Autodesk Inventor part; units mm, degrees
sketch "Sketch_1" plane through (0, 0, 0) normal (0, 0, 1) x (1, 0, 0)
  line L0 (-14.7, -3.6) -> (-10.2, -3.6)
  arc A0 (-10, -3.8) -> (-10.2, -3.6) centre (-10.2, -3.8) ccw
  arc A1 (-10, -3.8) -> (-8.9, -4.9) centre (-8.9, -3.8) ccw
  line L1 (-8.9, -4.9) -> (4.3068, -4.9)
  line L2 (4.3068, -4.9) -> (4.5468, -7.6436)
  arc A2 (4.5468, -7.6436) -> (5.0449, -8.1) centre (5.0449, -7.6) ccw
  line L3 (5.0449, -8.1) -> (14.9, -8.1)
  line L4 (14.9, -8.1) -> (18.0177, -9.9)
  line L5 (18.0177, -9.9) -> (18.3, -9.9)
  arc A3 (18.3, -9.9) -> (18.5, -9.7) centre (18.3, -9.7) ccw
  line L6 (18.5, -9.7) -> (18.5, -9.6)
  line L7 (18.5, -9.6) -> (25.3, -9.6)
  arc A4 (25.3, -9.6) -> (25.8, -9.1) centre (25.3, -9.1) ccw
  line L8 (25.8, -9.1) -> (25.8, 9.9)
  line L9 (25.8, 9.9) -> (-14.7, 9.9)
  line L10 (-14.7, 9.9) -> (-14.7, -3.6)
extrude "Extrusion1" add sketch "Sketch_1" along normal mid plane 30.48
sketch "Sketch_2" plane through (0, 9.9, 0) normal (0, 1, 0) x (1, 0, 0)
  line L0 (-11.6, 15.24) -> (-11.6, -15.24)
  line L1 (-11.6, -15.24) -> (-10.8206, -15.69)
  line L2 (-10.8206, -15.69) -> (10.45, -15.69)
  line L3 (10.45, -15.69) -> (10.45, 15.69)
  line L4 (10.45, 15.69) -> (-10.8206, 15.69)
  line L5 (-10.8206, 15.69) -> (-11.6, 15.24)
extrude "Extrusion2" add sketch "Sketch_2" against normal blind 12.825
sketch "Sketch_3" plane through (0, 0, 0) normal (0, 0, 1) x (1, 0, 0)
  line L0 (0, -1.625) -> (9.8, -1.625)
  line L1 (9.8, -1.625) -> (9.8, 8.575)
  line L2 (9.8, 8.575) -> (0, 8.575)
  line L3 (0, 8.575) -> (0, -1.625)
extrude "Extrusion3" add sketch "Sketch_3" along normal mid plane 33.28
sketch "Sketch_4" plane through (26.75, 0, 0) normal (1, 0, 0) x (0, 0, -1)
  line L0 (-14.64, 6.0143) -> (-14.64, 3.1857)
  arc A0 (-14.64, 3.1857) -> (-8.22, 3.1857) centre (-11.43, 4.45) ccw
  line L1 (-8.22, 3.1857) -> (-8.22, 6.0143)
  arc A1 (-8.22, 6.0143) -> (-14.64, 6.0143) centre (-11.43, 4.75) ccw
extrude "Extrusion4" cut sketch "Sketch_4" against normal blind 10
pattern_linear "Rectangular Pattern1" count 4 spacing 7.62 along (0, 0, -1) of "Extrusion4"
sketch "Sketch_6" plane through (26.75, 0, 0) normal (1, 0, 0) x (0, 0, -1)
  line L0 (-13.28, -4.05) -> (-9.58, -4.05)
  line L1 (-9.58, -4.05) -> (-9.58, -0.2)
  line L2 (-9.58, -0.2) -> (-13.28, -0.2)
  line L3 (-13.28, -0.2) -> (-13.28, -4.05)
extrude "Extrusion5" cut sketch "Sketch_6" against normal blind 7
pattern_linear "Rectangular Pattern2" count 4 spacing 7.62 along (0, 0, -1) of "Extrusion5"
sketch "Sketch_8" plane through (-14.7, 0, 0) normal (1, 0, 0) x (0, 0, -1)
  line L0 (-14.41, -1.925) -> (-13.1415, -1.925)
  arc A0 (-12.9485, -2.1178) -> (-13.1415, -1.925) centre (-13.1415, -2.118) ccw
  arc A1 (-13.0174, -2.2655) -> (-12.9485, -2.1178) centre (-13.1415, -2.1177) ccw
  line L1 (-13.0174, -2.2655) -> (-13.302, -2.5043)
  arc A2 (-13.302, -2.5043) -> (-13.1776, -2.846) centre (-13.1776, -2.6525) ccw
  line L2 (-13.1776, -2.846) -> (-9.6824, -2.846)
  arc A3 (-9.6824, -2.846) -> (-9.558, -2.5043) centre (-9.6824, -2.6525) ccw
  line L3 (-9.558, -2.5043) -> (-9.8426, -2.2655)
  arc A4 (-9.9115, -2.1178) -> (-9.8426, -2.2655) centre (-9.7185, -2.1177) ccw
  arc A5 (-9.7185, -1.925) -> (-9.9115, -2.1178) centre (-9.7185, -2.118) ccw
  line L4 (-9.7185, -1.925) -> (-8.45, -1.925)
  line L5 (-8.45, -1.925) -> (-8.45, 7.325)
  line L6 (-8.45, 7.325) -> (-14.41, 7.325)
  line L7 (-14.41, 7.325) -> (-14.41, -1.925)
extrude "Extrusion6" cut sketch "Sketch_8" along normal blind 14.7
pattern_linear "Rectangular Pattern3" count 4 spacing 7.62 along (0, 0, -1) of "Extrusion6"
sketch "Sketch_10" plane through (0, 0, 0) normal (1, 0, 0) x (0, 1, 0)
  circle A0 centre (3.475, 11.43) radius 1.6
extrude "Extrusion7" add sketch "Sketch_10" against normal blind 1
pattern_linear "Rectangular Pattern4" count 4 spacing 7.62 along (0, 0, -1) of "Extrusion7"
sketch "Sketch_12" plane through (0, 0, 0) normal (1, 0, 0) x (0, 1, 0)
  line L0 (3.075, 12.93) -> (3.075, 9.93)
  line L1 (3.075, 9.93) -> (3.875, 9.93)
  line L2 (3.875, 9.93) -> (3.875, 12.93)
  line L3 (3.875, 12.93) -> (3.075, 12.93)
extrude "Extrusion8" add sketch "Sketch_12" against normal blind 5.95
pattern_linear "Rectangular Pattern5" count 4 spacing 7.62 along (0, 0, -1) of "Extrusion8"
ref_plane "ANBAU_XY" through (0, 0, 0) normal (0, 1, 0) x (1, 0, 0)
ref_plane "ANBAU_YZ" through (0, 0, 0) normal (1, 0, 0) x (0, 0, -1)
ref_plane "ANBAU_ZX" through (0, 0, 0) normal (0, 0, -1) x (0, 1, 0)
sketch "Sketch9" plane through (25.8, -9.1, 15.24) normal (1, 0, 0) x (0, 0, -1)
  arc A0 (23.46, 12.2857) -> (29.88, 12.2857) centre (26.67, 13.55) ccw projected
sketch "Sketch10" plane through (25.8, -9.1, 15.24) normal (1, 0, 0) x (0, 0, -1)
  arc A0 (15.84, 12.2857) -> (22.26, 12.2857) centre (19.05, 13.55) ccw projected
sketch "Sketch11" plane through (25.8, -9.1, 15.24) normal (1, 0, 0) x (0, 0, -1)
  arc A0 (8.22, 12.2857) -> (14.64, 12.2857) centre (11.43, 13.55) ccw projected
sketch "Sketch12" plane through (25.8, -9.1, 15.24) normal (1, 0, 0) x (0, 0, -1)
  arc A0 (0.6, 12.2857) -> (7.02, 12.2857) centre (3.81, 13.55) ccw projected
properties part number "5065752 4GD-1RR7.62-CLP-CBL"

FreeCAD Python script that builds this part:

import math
import FreeCAD as App
import Part
import Sketcher
from FreeCAD import Vector
Q = App.Units.Quantity


def add_polygon(sketch, points):
    """Adds a closed chain of lines whose ends are joined by coincident constraints."""
    first, n = sketch.GeometryCount, len(points)
    for a, b in zip(points, points[1:] + points[:1]):
        sketch.addGeometry(Part.LineSegment(App.Vector(*a, 0), App.Vector(*b, 0)), False)
    for i in range(n):
        sketch.addConstraint(Sketcher.Constraint("Coincident", first + i, 2, first + (i + 1) % n, 1))

doc = App.newDocument("Part")
body = doc.addObject("PartDesign::Body", "Body")

sketch1 = doc.addObject("Sketcher::SketchObject", "Sketch")
body.addObject(sketch1)
sketch1.AttachmentSupport = (doc.XY_Plane, [""])
sketch1.MapMode = "FlatFace"
sketch1.addGeometry(Part.LineSegment(Vector(-14.7, 9.9, 0), Vector(-14.7, -3.6, 0)), False)
sketch1.addGeometry(Part.LineSegment(Vector(-14.7, -3.6, 0), Vector(-10.2, -3.6, 0)), False)
sketch1.addGeometry(Part.ArcOfCircle(Part.Circle(Vector(-10.2, -3.8, 0), Vector(0, 0, 1), 0.2), math.radians(0), math.radians(90)), False)
sketch1.addGeometry(Part.ArcOfCircle(Part.Circle(Vector(-8.9, -3.8, 0), Vector(0, 0, 1), 1.1), math.radians(180), math.radians(270)), False)
sketch1.addGeometry(Part.LineSegment(Vector(-8.9, -4.9, 0), Vector(4.3068, -4.9, 0)), False)
sketch1.addGeometry(Part.LineSegment(Vector(4.3068, -4.9, 0), Vector(4.5468, -7.6436, 0)), False)
sketch1.addGeometry(Part.ArcOfCircle(Part.Circle(Vector(5.0449, -7.6, 0), Vector(0, 0, 1), 0.500005), math.radians(-174.9975), math.radians(-90)), False)
sketch1.addGeometry(Part.LineSegment(Vector(5.0449, -8.1, 0), Vector(14.9, -8.1, 0)), False)
sketch1.addGeometry(Part.LineSegment(Vector(14.9, -8.1, 0), Vector(18.0177, -9.9, 0)), False)
sketch1.addGeometry(Part.LineSegment(Vector(18.0177, -9.9, 0), Vector(18.3, -9.9, 0)), False)
sketch1.addGeometry(Part.ArcOfCircle(Part.Circle(Vector(18.3, -9.7, 0), Vector(0, 0, 1), 0.2), math.radians(-90), math.radians(0)), False)
sketch1.addGeometry(Part.LineSegment(Vector(18.5, -9.7, 0), Vector(18.5, -9.6, 0)), False)
sketch1.addGeometry(Part.LineSegment(Vector(18.5, -9.6, 0), Vector(25.3, -9.6, 0)), False)
sketch1.addGeometry(Part.ArcOfCircle(Part.Circle(Vector(25.3, -9.1, 0), Vector(0, 0, 1), 0.5), math.radians(-90), math.radians(0)), False)
sketch1.addGeometry(Part.LineSegment(Vector(25.8, -9.1, 0), Vector(25.8, 9.9, 0)), False)
sketch1.addGeometry(Part.LineSegment(Vector(25.8, 9.9, 0), Vector(-14.7, 9.9, 0)), False)
sketch1.addConstraint(Sketcher.Constraint("Coincident", 0, 2, 1, 1))
sketch1.addConstraint(Sketcher.Constraint("Tangent", 1, 2, 2, 2))
sketch1.addConstraint(Sketcher.Constraint("Tangent", 2, 1, 3, 1))
sketch1.addConstraint(Sketcher.Constraint("Tangent", 3, 2, 4, 1))
sketch1.addConstraint(Sketcher.Constraint("Coincident", 4, 2, 5, 1))
sketch1.addConstraint(Sketcher.Constraint("Tangent", 5, 2, 6, 1))
sketch1.addConstraint(Sketcher.Constraint("Tangent", 6, 2, 7, 1))
sketch1.addConstraint(Sketcher.Constraint("Coincident", 7, 2, 8, 1))
sketch1.addConstraint(Sketcher.Constraint("Coincident", 8, 2, 9, 1))
sketch1.addConstraint(Sketcher.Constraint("Tangent", 9, 2, 10, 1))
sketch1.addConstraint(Sketcher.Constraint("Tangent", 10, 2, 11, 1))
sketch1.addConstraint(Sketcher.Constraint("Coincident", 11, 2, 12, 1))
sketch1.addConstraint(Sketcher.Constraint("Tangent", 12, 2, 13, 1))
sketch1.addConstraint(Sketcher.Constraint("Tangent", 13, 2, 14, 1))
sketch1.addConstraint(Sketcher.Constraint("Coincident", 14, 2, 15, 1))
sketch1.addConstraint(Sketcher.Constraint("Coincident", 15, 2, 0, 1))
sketch1.addConstraint(Sketcher.Constraint("Vertical", 0))
sketch1.addConstraint(Sketcher.Constraint("Horizontal", 1))
sketch1.addConstraint(Sketcher.Constraint("Horizontal", 4))
sketch1.addConstraint(Sketcher.Constraint("Horizontal", 7))
sketch1.addConstraint(Sketcher.Constraint("Horizontal", 9))
sketch1.addConstraint(Sketcher.Constraint("Vertical", 11))
sketch1.addConstraint(Sketcher.Constraint("Horizontal", 12))
sketch1.addConstraint(Sketcher.Constraint("Vertical", 14))
sketch1.addConstraint(Sketcher.Constraint("Horizontal", 15))
sketch1.addConstraint(Sketcher.Constraint("Equal", 2, 10))
sketch1.addConstraint(Sketcher.Constraint("Equal", 6, 13))
sketch1.addConstraint(Sketcher.Constraint("Horizontal", 2, 3, 3, 3))
sketch1.addConstraint(Sketcher.Constraint("Radius", 2, 0.2))
sketch1.addConstraint(Sketcher.Constraint("Radius", 3, 1.1))
sketch1.addConstraint(Sketcher.Constraint("Radius", 6, 0.5))
sketch1.addConstraint(Sketcher.Constraint("DistanceY", 14, 1, 14, 2, 19.0))
sketch1.addConstraint(Sketcher.Constraint("Angle", 5, Q("-85.0007 deg")))
sketch1.addConstraint(Sketcher.Constraint("Angle", 8, Q("-30 deg")))
sketch1.addConstraint(Sketcher.Constraint("DistanceX", 1, 1, 1, 2, 4.5))
sketch1.addConstraint(Sketcher.Constraint("DistanceX", 12, 1, 12, 2, 6.8))
sketch1.addConstraint(Sketcher.Constraint("DistanceX", 15, 2, 15, 1, 40.5))
sketch1.addConstraint(Sketcher.Constraint("DistanceY", 0, 2, 0, 1, 13.5))
sketch1.addConstraint(Sketcher.Constraint("DistanceY", 11, 1, 11, 2, 0.1))
sketch1.addConstraint(Sketcher.Constraint("DistanceX", 2, 1, -1, 1, 10.0))
sketch1.addConstraint(Sketcher.Constraint("DistanceY", 6, 3, 0, 2, 4.0))
sketch1.addConstraint(Sketcher.Constraint("DistanceY", 2, 3, -1, 1, 3.8))
sketch1.addConstraint(Sketcher.Constraint("DistanceX", -1, 1, 7, 2, 14.9))
sketch1.addConstraint(Sketcher.Constraint("DistanceX", 7, 1, 7, 2, 9.855))
pad1 = doc.addObject("PartDesign::Pad", "Pad")
body.addObject(pad1)
pad1.Profile = sketch1
pad1.Length = 30.48
pad1.Midplane = True

sketch2 = doc.addObject("Sketcher::SketchObject", "Sketch001")
body.addObject(sketch2)
sketch2.AttachmentSupport = (doc.XZ_Plane, [""])
sketch2.MapMode = "FlatFace"
sketch2.AttachmentOffset = App.Placement(Vector(0, 0, -9.9), App.Rotation())
add_polygon(sketch2, [(-10.8206, -15.69), (-11.6, -15.24), (-11.6, 15.24), (-10.8206, 15.69), (10.45, 15.69), (10.45, -15.69)])
sketch2.addConstraint(Sketcher.Constraint("Vertical", 1))
sketch2.addConstraint(Sketcher.Constraint("Horizontal", 3))
sketch2.addConstraint(Sketcher.Constraint("Vertical", 4))
sketch2.addConstraint(Sketcher.Constraint("Horizontal", 5))
sketch2.addConstraint(Sketcher.Constraint("Symmetric", 2, 2, 5, 2, -1))
sketch2.addConstraint(Sketcher.Constraint("Equal", 0, 2))
sketch2.addConstraint(Sketcher.Constraint("Angle", 0, Q("149.9993 deg")))
sketch2.addConstraint(Sketcher.Constraint("Distance", 0, 0.9))
sketch2.addConstraint(Sketcher.Constraint("DistanceY", 1, 1, 1, 2, 30.48))
sketch2.addConstraint(Sketcher.Constraint("DistanceX", 0, 2, -1, 1, 11.6))
sketch2.addConstraint(Sketcher.Constraint("DistanceX", -1, 1, 3, 2, 10.45))
pad2 = doc.addObject("PartDesign::Pad", "Pad001")
body.addObject(pad2)
pad2.Profile = sketch2
pad2.Length = 12.825

sketch3 = doc.addObject("Sketcher::SketchObject", "Sketch002")
body.addObject(sketch3)
sketch3.AttachmentSupport = (doc.XY_Plane, [""])
sketch3.MapMode = "FlatFace"
add_polygon(sketch3, [(0, 8.575), (0, -1.625), (9.8, -1.625), (9.8, 8.575)])
sketch3.addConstraint(Sketcher.Constraint("Vertical", 0))
sketch3.addConstraint(Sketcher.Constraint("Horizontal", 1))
sketch3.addConstraint(Sketcher.Constraint("Vertical", 2))
sketch3.addConstraint(Sketcher.Constraint("Horizontal", 3))
sketch3.addConstraint(Sketcher.Constraint("PointOnObject", 0, 2, -2))
sketch3.addConstraint(Sketcher.Constraint("DistanceX", 1, 1, 1, 2, 9.8))
sketch3.addConstraint(Sketcher.Constraint("DistanceY", 0, 2, 0, 1, 10.2))
sketch3.addConstraint(Sketcher.Constraint("DistanceY", 0, 2, -1, 1, 1.625))
pad3 = doc.addObject("PartDesign::Pad", "Pad002")
body.addObject(pad3)
pad3.Profile = sketch3
pad3.Length = 33.28
pad3.Midplane = True

sketch4 = doc.addObject("Sketcher::SketchObject", "Sketch003")
body.addObject(sketch4)
sketch4.AttachmentSupport = (doc.YZ_Plane, [""])
sketch4.MapMode = "FlatFace"
sketch4.AttachmentOffset = App.Placement(Vector(0, 0, 26.75), App.Rotation())
sketch4.addGeometry(Part.ArcOfCircle(Part.Circle(Vector(4.75, 11.43, 0), Vector(0, 0, 1), 3.450008), math.radians(-68.502358), math.radians(68.502358)), False)
sketch4.addGeometry(Part.LineSegment(Vector(6.0143, 14.64, 0), Vector(3.1857, 14.64, 0)), False)
sketch4.addGeometry(Part.ArcOfCircle(Part.Circle(Vector(4.45, 11.43, 0), Vector(0, 0, 1), 3.450008), math.radians(111.497642), math.radians(248.502358)), False)
sketch4.addGeometry(Part.LineSegment(Vector(3.1857, 8.22, 0), Vector(6.0143, 8.22, 0)), False)
sketch4.addConstraint(Sketcher.Constraint("Coincident", 0, 2, 1, 1))
sketch4.addConstraint(Sketcher.Constraint("Coincident", 1, 2, 2, 1))
sketch4.addConstraint(Sketcher.Constraint("Coincident", 2, 2, 3, 1))
sketch4.addConstraint(Sketcher.Constraint("Coincident", 3, 2, 0, 1))
sketch4.addConstraint(Sketcher.Constraint("Horizontal", 1))
sketch4.addConstraint(Sketcher.Constraint("Horizontal", 3))
sketch4.addConstraint(Sketcher.Constraint("Equal", 0, 2))
sketch4.addConstraint(Sketcher.Constraint("Horizontal", 0, 3, 2, 3))
sketch4.addConstraint(Sketcher.Constraint("Vertical", 1, 2, 2, 2))
sketch4.addConstraint(Sketcher.Constraint("Radius", 0, 3.45))
sketch4.addConstraint(Sketcher.Constraint("DistanceX", 2, 3, 0, 3, 0.3))
sketch4.addConstraint(Sketcher.Constraint("DistanceX", -1, 1, 0, 3, 4.75))
sketch4.addConstraint(Sketcher.Constraint("DistanceY", -1, 1, 0, 3, 11.43))
sketch4.addConstraint(Sketcher.Constraint("DistanceY", -1, 1, 0, 2, 14.64))
pocket1 = doc.addObject("PartDesign::Pocket", "Pocket")
body.addObject(pocket1)
pocket1.Profile = sketch4
pocket1.Length = 10
doc.recompute()

linearpattern = doc.addObject("PartDesign::LinearPattern", "LinearPattern")
body.addObject(linearpattern)
linearpattern.Originals = [pocket1]
linearpattern.Direction = (doc.Z_Axis, [""])
linearpattern.Mode = "offset"
linearpattern.Offset = 7.62
linearpattern.Occurrences = 4
linearpattern.Reversed = True
body.Tip = linearpattern

sketch5 = doc.addObject("Sketcher::SketchObject", "Sketch004")
body.addObject(sketch5)
sketch5.AttachmentSupport = (doc.YZ_Plane, [""])
sketch5.MapMode = "FlatFace"
sketch5.AttachmentOffset = App.Placement(Vector(0, 0, 26.75), App.Rotation())
add_polygon(sketch5, [(-0.2, 13.28), (-4.05, 13.28), (-4.05, 9.58), (-0.2, 9.58)])
sketch5.addConstraint(Sketcher.Constraint("Horizontal", 0))
sketch5.addConstraint(Sketcher.Constraint("Vertical", 1))
sketch5.addConstraint(Sketcher.Constraint("Horizontal", 2))
sketch5.addConstraint(Sketcher.Constraint("Vertical", 3))
sketch5.addConstraint(Sketcher.Constraint("DistanceY", 1, 2, 1, 1, 3.7))
sketch5.addConstraint(Sketcher.Constraint("DistanceX", 0, 2, 0, 1, 3.85))
sketch5.addConstraint(Sketcher.Constraint("DistanceX", 2, 2, -1, 1, 0.2))
sketch5.addConstraint(Sketcher.Constraint("DistanceY", -1, 1, 0, 2, 13.28))
pocket2 = doc.addObject("PartDesign::Pocket", "Pocket001")
body.addObject(pocket2)
pocket2.Profile = sketch5
pocket2.Length = 7
doc.recompute()

linearpattern2 = doc.addObject("PartDesign::LinearPattern", "LinearPattern001")
body.addObject(linearpattern2)
linearpattern2.Originals = [pocket2]
linearpattern2.Direction = (doc.Z_Axis, [""])
linearpattern2.Mode = "offset"
linearpattern2.Offset = 7.62
linearpattern2.Occurrences = 4
linearpattern2.Reversed = True
body.Tip = linearpattern2

sketch6 = doc.addObject("Sketcher::SketchObject", "Sketch005")
body.addObject(sketch6)
sketch6.AttachmentSupport = (doc.YZ_Plane, [""])
sketch6.MapMode = "FlatFace"
sketch6.AttachmentOffset = App.Placement(Vector(0, 0, -14.7), App.Rotation())
sketch6.addGeometry(Part.LineSegment(Vector(7.325, 14.41, 0), Vector(-1.925, 14.41, 0)), False)
sketch6.addGeometry(Part.LineSegment(Vector(-1.925, 14.41, 0), Vector(-1.925, 13.1415, 0)), False)
sketch6.addGeometry(Part.ArcOfCircle(Part.Circle(Vector(-2.118, 13.1415, 0), Vector(0, 0, 1), 0.193), math.radians(-89.940626), math.radians(0)), False)
sketch6.addGeometry(Part.ArcOfCircle(Part.Circle(Vector(-2.1177, 13.1415, 0), Vector(0, 0, 1), 0.192991), math.radians(-139.981562), math.radians(-90.029687)), False)
sketch6.addGeometry(Part.LineSegment(Vector(-2.2655, 13.0174, 0), Vector(-2.5043, 13.302, 0)), False)
sketch6.addGeometry(Part.ArcOfCircle(Part.Circle(Vector(-2.6525, 13.1776, 0), Vector(0, 0, 1), 0.193491), math.radians(40.010306), math.radians(180)), False)
sketch6.addGeometry(Part.LineSegment(Vector(-2.846, 13.1776, 0), Vector(-2.846, 9.6824, 0)), False)
sketch6.addGeometry(Part.ArcOfCircle(Part.Circle(Vector(-2.6525, 9.6824, 0), Vector(0, 0, 1), 0.1935), math.radians(180), math.radians(319.989694)), False)
sketch6.addGeometry(Part.LineSegment(Vector(-2.5043, 9.558, 0), Vector(-2.2655, 9.8426, 0)), False)
sketch6.addGeometry(Part.ArcOfCircle(Part.Circle(Vector(-2.1177, 9.7185, 0), Vector(0, 0, 1), 0.193), math.radians(90.029687), math.radians(139.981562)), False)
sketch6.addGeometry(Part.ArcOfCircle(Part.Circle(Vector(-2.118, 9.7185, 0), Vector(0, 0, 1), 0.193), math.radians(0), math.radians(89.940626)), False)
sketch6.addGeometry(Part.LineSegment(Vector(-1.925, 9.7185, 0), Vector(-1.925, 8.45, 0)), False)
sketch6.addGeometry(Part.LineSegment(Vector(-1.925, 8.45, 0), Vector(7.325, 8.45, 0)), False)
sketch6.addGeometry(Part.LineSegment(Vector(7.325, 8.45, 0), Vector(7.325, 14.41, 0)), False)
sketch6.addConstraint(Sketcher.Constraint("Coincident", 0, 2, 1, 1))
sketch6.addConstraint(Sketcher.Constraint("Tangent", 1, 2, 2, 2))
sketch6.addConstraint(Sketcher.Constraint("Coincident", 2, 1, 3, 2))
sketch6.addConstraint(Sketcher.Constraint("Tangent", 3, 1, 4, 1))
sketch6.addConstraint(Sketcher.Constraint("Tangent", 4, 2, 5, 1))
sketch6.addConstraint(Sketcher.Constraint("Tangent", 5, 2, 6, 1))
sketch6.addConstraint(Sketcher.Constraint("Tangent", 6, 2, 7, 1))
sketch6.addConstraint(Sketcher.Constraint("Tangent", 7, 2, 8, 1))
sketch6.addConstraint(Sketcher.Constraint("Tangent", 8, 2, 9, 2))
sketch6.addConstraint(Sketcher.Constraint("Coincident", 9, 1, 10, 2))
sketch6.addConstraint(Sketcher.Constraint("Tangent", 10, 1, 11, 1))
sketch6.addConstraint(Sketcher.Constraint("Coincident", 11, 2, 12, 1))
sketch6.addConstraint(Sketcher.Constraint("Coincident", 12, 2, 13, 1))
sketch6.addConstraint(Sketcher.Constraint("Coincident", 13, 2, 0, 1))
sketch6.addConstraint(Sketcher.Constraint("Horizontal", 0))
sketch6.addConstraint(Sketcher.Constraint("Vertical", 1))
sketch6.addConstraint(Sketcher.Constraint("Vertical", 6))
sketch6.addConstraint(Sketcher.Constraint("Vertical", 11))
sketch6.addConstraint(Sketcher.Constraint("Horizontal", 12))
sketch6.addConstraint(Sketcher.Constraint("Vertical", 13))
sketch6.addConstraint(Sketcher.Constraint("Coincident", 3, 3, 2, 3))
sketch6.addConstraint(Sketcher.Constraint("Coincident", 10, 3, 9, 3))
sketch6.addConstraint(Sketcher.Constraint("Equal", 5, 7))
sketch6.addConstraint(Sketcher.Constraint("Equal", 3, 9))
sketch6.addConstraint(Sketcher.Constraint("Vertical", 3, 3, 9, 3))
sketch6.addConstraint(Sketcher.Constraint("Vertical", 10, 3, 2, 1))
sketch6.addConstraint(Sketcher.Constraint("Vertical", 4, 2, 7, 2))
sketch6.addConstraint(Sketcher.Constraint("Vertical", 2, 1, 9, 1))
sketch6.addConstraint(Sketcher.Constraint("Equal", 1, 11))
sketch6.addConstraint(Sketcher.Constraint("Angle", 4, Q("129.999 deg")))
sketch6.addConstraint(Sketcher.Constraint("Radius", 2, 0.193))
sketch6.addConstraint(Sketcher.Constraint("DistanceX", 0, 2, 0, 1, 9.25))
sketch6.addConstraint(Sketcher.Constraint("DistanceY", 13, 1, 13, 2, 5.96))
sketch6.addConstraint(Sketcher.Constraint("Radius", 5, 0.1935))
sketch6.addConstraint(Sketcher.Constraint("DistanceY", -1, 1, 0, 2, 14.41))
sketch6.addConstraint(Sketcher.Constraint("DistanceY", 1, 2, 1, 1, 1.2685))
sketch6.addConstraint(Sketcher.Constraint("DistanceY", 6, 2, 6, 1, 3.4952))
sketch6.addConstraint(Sketcher.Constraint("DistanceX", 2, 3, -1, 1, 2.118))
pocket3 = doc.addObject("PartDesign::Pocket", "Pocket002")
body.addObject(pocket3)
pocket3.Profile = sketch6
pocket3.Length = 14.7
pocket3.Reversed = True
doc.recompute()

linearpattern3 = doc.addObject("PartDesign::LinearPattern", "LinearPattern002")
body.addObject(linearpattern3)
linearpattern3.Originals = [pocket3]
linearpattern3.Direction = (doc.Z_Axis, [""])
linearpattern3.Mode = "offset"
linearpattern3.Offset = 7.62
linearpattern3.Occurrences = 4
linearpattern3.Reversed = True
body.Tip = linearpattern3

sketch7 = doc.addObject("Sketcher::SketchObject", "Sketch006")
body.addObject(sketch7)
sketch7.AttachmentSupport = (doc.YZ_Plane, [""])
sketch7.MapMode = "FlatFace"
sketch7.addGeometry(Part.Circle(Vector(3.475, 11.43, 0), Vector(0, 0, 1), 1.6), False)
sketch7.addConstraint(Sketcher.Constraint("Diameter", 0, 3.2))
sketch7.addConstraint(Sketcher.Constraint("DistanceY", -1, 1, 0, 3, 11.43))
sketch7.addConstraint(Sketcher.Constraint("DistanceX", -1, 1, 0, 3, 3.475))
pad4 = doc.addObject("PartDesign::Pad", "Pad003")
body.addObject(pad4)
pad4.Profile = sketch7
pad4.Length = 1
pad4.Reversed = True
doc.recompute()

linearpattern4 = doc.addObject("PartDesign::LinearPattern", "LinearPattern003")
body.addObject(linearpattern4)
linearpattern4.Originals = [pad4]
linearpattern4.Direction = (doc.Z_Axis, [""])
linearpattern4.Mode = "offset"
linearpattern4.Offset = 7.62
linearpattern4.Occurrences = 4
linearpattern4.Reversed = True
body.Tip = linearpattern4

sketch8 = doc.addObject("Sketcher::SketchObject", "Sketch007")
body.addObject(sketch8)
sketch8.AttachmentSupport = (doc.YZ_Plane, [""])
sketch8.MapMode = "FlatFace"
add_polygon(sketch8, [(3.875, 12.93), (3.075, 12.93), (3.075, 9.93), (3.875, 9.93)])
sketch8.addConstraint(Sketcher.Constraint("Horizontal", 0))
sketch8.addConstraint(Sketcher.Constraint("Vertical", 1))
sketch8.addConstraint(Sketcher.Constraint("Horizontal", 2))
sketch8.addConstraint(Sketcher.Constraint("Vertical", 3))
sketch8.addConstraint(Sketcher.Constraint("DistanceY", 1, 2, 1, 1, 3.0))
sketch8.addConstraint(Sketcher.Constraint("DistanceX", 0, 2, 0, 1, 0.8))
sketch8.addConstraint(Sketcher.Constraint("DistanceY", -1, 1, 0, 2, 12.93))
sketch8.addConstraint(Sketcher.Constraint("DistanceX", -1, 1, 0, 2, 3.075))
pad5 = doc.addObject("PartDesign::Pad", "Pad004")
body.addObject(pad5)
pad5.Profile = sketch8
pad5.Length = 5.95
pad5.Reversed = True
doc.recompute()

linearpattern5 = doc.addObject("PartDesign::LinearPattern", "LinearPattern004")
body.addObject(linearpattern5)
linearpattern5.Originals = [pad5]
linearpattern5.Direction = (doc.Z_Axis, [""])
linearpattern5.Mode = "offset"
linearpattern5.Offset = 7.62
linearpattern5.Occurrences = 4
linearpattern5.Reversed = True
body.Tip = linearpattern5

doc.recompute()
